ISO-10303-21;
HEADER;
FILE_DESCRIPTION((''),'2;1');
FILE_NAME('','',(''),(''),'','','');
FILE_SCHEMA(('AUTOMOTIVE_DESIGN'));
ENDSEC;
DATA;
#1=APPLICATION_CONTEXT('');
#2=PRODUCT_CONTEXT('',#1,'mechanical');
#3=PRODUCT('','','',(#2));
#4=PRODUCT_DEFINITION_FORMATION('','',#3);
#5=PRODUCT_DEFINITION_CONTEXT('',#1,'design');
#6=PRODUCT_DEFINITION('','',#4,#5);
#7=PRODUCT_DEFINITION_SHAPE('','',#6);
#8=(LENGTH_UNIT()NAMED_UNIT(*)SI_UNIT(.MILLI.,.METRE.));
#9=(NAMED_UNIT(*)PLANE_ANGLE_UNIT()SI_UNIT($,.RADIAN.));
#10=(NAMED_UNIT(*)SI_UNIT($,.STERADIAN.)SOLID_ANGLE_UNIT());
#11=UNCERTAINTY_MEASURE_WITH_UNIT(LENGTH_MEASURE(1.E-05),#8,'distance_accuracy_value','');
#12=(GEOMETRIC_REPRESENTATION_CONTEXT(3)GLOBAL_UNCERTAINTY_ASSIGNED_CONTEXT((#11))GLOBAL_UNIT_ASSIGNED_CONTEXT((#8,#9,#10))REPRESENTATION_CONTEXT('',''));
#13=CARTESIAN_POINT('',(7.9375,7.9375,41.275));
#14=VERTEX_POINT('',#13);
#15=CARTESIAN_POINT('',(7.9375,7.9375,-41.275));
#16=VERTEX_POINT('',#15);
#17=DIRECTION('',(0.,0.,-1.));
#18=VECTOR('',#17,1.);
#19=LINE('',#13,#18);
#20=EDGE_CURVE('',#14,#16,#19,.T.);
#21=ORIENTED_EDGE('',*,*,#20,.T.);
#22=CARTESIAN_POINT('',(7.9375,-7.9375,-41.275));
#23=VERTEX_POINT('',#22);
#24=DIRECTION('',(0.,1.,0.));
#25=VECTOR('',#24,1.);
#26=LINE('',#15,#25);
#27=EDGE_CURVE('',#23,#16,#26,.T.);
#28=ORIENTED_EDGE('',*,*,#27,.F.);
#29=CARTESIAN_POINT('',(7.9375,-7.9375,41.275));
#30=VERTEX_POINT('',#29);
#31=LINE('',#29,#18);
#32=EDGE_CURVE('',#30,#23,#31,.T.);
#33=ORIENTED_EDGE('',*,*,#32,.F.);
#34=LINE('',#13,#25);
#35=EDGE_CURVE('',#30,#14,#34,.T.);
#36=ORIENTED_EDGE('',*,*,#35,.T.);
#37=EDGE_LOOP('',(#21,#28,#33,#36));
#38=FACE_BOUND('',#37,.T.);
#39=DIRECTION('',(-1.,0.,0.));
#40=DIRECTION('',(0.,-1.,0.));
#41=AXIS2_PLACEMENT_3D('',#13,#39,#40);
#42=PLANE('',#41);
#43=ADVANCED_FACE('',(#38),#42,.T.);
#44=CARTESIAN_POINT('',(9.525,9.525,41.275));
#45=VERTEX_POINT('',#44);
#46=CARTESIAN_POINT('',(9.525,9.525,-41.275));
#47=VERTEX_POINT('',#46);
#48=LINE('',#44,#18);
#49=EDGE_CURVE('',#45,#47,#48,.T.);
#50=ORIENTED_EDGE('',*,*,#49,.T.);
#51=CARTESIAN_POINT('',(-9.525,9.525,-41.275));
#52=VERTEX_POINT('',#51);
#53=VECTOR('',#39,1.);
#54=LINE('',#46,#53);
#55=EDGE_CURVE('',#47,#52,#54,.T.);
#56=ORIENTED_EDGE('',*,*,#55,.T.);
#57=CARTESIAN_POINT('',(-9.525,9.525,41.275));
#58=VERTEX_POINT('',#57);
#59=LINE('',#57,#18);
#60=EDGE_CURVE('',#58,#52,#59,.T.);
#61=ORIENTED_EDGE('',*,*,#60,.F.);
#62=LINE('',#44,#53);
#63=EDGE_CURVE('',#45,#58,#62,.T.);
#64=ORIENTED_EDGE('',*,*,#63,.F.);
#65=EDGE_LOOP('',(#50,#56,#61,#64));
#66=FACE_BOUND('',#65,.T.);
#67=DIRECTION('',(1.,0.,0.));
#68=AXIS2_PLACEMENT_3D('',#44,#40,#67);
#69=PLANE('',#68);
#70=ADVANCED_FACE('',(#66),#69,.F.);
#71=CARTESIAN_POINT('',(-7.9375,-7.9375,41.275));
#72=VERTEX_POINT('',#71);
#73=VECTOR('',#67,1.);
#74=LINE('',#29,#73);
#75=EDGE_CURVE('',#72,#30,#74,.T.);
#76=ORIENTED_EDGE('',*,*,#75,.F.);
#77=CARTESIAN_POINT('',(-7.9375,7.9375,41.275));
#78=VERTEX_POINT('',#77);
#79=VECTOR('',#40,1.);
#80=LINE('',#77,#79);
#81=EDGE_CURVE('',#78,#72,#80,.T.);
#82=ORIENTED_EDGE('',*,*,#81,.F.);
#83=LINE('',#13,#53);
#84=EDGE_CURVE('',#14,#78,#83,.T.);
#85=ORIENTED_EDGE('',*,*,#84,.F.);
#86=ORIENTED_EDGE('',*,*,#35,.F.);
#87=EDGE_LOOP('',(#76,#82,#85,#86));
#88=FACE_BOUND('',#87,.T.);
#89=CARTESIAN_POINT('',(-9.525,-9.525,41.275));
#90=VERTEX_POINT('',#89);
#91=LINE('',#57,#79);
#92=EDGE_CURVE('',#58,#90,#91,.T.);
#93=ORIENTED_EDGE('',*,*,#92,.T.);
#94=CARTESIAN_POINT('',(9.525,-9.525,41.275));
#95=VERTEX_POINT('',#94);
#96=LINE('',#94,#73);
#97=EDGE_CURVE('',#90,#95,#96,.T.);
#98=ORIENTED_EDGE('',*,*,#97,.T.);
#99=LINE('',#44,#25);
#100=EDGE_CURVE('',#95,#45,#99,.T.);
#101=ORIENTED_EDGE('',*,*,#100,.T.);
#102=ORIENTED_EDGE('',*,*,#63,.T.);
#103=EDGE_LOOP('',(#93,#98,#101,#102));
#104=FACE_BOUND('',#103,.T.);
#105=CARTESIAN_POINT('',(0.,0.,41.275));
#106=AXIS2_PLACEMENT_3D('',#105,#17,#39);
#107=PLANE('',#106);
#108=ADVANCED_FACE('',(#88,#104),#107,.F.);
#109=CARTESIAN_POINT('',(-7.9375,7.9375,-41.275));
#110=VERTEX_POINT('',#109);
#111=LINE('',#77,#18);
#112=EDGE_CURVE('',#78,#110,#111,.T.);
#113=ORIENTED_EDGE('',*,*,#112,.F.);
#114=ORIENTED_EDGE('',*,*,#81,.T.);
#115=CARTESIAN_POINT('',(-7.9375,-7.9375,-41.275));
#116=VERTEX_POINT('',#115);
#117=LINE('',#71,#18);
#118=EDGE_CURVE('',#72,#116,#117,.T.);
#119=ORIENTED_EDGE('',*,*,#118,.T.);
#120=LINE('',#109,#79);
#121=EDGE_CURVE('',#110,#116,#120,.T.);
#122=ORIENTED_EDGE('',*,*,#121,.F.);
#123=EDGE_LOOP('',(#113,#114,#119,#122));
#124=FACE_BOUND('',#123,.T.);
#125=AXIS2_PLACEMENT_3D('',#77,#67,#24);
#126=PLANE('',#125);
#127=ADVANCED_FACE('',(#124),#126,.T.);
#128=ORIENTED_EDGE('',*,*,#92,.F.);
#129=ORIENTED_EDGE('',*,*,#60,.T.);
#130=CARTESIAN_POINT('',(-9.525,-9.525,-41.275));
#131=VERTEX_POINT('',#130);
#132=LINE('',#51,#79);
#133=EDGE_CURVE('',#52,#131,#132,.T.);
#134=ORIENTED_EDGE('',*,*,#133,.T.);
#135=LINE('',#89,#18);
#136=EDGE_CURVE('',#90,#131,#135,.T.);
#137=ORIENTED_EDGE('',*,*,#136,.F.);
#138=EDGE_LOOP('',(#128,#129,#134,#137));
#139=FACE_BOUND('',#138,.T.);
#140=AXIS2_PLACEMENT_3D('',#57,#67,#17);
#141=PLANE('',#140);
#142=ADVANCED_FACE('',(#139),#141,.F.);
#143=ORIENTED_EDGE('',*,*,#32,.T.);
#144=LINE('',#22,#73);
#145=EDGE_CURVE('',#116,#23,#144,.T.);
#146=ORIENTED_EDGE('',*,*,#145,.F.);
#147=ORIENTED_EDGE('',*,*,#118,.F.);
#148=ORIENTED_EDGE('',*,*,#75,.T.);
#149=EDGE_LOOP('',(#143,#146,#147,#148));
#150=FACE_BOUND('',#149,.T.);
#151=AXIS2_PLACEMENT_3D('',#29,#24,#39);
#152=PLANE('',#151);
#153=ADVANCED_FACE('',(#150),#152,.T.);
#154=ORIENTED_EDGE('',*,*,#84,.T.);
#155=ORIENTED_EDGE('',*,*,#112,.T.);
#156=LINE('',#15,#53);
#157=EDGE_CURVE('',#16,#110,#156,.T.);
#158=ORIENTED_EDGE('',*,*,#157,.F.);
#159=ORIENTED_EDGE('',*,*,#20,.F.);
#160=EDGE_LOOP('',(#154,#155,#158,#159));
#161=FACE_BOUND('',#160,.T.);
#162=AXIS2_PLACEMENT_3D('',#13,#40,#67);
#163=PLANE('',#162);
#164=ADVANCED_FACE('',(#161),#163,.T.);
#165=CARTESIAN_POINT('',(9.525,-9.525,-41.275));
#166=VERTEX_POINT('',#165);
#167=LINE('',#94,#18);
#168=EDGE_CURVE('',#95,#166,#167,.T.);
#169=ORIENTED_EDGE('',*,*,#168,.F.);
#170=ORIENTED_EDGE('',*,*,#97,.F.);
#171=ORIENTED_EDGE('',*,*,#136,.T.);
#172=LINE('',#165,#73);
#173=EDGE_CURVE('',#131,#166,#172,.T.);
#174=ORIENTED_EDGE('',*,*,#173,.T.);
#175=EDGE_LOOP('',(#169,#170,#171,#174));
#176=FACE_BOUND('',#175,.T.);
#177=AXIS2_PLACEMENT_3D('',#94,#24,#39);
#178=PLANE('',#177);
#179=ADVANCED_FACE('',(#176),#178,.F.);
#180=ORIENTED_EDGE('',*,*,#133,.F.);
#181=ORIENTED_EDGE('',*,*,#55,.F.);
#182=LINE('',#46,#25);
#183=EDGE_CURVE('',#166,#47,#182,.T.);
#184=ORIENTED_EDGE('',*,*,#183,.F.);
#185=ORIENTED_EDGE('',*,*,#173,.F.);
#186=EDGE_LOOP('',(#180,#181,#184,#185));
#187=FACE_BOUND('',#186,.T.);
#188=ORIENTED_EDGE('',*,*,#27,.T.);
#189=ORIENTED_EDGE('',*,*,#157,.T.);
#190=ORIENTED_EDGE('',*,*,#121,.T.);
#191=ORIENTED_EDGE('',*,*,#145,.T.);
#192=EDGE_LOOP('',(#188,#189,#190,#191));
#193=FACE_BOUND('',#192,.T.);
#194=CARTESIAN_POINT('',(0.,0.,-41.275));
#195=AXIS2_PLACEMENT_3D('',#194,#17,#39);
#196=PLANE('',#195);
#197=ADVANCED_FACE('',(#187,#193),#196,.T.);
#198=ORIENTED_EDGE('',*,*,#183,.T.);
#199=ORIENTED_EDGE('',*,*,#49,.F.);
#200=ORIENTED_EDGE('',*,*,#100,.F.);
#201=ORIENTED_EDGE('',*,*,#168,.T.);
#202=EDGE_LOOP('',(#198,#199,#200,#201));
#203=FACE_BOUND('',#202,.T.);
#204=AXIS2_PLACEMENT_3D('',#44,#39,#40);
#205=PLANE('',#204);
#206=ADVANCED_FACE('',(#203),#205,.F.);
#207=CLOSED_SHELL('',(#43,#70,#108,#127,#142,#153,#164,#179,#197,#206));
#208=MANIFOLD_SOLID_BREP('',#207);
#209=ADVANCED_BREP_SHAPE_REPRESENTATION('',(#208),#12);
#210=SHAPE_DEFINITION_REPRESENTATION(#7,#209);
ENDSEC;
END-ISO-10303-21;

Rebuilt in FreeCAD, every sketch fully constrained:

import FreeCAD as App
import Part
import Sketcher
from FreeCAD import Vector
Q = App.Units.Quantity


def add_polygon(sketch, points):
    """Adds a closed chain of lines whose ends are joined by coincident constraints."""
    first, n = sketch.GeometryCount, len(points)
    for a, b in zip(points, points[1:] + points[:1]):
        sketch.addGeometry(Part.LineSegment(App.Vector(*a, 0), App.Vector(*b, 0)), False)
    for i in range(n):
        sketch.addConstraint(Sketcher.Constraint("Coincident", first + i, 2, first + (i + 1) % n, 1))

doc = App.newDocument("Part")
body = doc.addObject("PartDesign::Body", "Body")

# Sketch on XY plane
sketch1 = doc.addObject("Sketcher::SketchObject", "Sketch")
body.addObject(sketch1)
sketch1.AttachmentSupport = (doc.XY_Plane, [""])
sketch1.MapMode = "FlatFace"
add_polygon(sketch1, [(-10, 10), (-10, -10), (10, -10), (10, 10)])  # lines 0-3
add_polygon(sketch1, [(8, -8), (-8, -8), (-8, 8), (8, 8)])  # lines 4-7
sketch1.addConstraint([
    Sketcher.Constraint("Vertical", 0),
    Sketcher.Constraint("Horizontal", 1),
    Sketcher.Constraint("Vertical", 2),
    Sketcher.Constraint("Horizontal", 3),
    Sketcher.Constraint("Horizontal", 4),
    Sketcher.Constraint("Vertical", 5),
    Sketcher.Constraint("Horizontal", 6),
    Sketcher.Constraint("Vertical", 7),
    Sketcher.Constraint("Symmetric", 0, 2, 2, 2, -1, 1),
    Sketcher.Constraint("Symmetric", 4, 2, 6, 2, -1, 1),
    Sketcher.Constraint("Equal", 3, 0),
    Sketcher.Constraint("Equal", 6, 5),
    Sketcher.Constraint("DistanceX", 1, 1, 1, 2, Q("0.75 in")),
    Sketcher.Constraint("DistanceX", 4, 2, 4, 1, Q("0.625 in")),
])
pad1 = doc.addObject("PartDesign::Pad", "Pad")
body.addObject(pad1)
pad1.Profile = sketch1
pad1.Length = Q("3.25 in")
pad1.Midplane = True

doc.recompute()
